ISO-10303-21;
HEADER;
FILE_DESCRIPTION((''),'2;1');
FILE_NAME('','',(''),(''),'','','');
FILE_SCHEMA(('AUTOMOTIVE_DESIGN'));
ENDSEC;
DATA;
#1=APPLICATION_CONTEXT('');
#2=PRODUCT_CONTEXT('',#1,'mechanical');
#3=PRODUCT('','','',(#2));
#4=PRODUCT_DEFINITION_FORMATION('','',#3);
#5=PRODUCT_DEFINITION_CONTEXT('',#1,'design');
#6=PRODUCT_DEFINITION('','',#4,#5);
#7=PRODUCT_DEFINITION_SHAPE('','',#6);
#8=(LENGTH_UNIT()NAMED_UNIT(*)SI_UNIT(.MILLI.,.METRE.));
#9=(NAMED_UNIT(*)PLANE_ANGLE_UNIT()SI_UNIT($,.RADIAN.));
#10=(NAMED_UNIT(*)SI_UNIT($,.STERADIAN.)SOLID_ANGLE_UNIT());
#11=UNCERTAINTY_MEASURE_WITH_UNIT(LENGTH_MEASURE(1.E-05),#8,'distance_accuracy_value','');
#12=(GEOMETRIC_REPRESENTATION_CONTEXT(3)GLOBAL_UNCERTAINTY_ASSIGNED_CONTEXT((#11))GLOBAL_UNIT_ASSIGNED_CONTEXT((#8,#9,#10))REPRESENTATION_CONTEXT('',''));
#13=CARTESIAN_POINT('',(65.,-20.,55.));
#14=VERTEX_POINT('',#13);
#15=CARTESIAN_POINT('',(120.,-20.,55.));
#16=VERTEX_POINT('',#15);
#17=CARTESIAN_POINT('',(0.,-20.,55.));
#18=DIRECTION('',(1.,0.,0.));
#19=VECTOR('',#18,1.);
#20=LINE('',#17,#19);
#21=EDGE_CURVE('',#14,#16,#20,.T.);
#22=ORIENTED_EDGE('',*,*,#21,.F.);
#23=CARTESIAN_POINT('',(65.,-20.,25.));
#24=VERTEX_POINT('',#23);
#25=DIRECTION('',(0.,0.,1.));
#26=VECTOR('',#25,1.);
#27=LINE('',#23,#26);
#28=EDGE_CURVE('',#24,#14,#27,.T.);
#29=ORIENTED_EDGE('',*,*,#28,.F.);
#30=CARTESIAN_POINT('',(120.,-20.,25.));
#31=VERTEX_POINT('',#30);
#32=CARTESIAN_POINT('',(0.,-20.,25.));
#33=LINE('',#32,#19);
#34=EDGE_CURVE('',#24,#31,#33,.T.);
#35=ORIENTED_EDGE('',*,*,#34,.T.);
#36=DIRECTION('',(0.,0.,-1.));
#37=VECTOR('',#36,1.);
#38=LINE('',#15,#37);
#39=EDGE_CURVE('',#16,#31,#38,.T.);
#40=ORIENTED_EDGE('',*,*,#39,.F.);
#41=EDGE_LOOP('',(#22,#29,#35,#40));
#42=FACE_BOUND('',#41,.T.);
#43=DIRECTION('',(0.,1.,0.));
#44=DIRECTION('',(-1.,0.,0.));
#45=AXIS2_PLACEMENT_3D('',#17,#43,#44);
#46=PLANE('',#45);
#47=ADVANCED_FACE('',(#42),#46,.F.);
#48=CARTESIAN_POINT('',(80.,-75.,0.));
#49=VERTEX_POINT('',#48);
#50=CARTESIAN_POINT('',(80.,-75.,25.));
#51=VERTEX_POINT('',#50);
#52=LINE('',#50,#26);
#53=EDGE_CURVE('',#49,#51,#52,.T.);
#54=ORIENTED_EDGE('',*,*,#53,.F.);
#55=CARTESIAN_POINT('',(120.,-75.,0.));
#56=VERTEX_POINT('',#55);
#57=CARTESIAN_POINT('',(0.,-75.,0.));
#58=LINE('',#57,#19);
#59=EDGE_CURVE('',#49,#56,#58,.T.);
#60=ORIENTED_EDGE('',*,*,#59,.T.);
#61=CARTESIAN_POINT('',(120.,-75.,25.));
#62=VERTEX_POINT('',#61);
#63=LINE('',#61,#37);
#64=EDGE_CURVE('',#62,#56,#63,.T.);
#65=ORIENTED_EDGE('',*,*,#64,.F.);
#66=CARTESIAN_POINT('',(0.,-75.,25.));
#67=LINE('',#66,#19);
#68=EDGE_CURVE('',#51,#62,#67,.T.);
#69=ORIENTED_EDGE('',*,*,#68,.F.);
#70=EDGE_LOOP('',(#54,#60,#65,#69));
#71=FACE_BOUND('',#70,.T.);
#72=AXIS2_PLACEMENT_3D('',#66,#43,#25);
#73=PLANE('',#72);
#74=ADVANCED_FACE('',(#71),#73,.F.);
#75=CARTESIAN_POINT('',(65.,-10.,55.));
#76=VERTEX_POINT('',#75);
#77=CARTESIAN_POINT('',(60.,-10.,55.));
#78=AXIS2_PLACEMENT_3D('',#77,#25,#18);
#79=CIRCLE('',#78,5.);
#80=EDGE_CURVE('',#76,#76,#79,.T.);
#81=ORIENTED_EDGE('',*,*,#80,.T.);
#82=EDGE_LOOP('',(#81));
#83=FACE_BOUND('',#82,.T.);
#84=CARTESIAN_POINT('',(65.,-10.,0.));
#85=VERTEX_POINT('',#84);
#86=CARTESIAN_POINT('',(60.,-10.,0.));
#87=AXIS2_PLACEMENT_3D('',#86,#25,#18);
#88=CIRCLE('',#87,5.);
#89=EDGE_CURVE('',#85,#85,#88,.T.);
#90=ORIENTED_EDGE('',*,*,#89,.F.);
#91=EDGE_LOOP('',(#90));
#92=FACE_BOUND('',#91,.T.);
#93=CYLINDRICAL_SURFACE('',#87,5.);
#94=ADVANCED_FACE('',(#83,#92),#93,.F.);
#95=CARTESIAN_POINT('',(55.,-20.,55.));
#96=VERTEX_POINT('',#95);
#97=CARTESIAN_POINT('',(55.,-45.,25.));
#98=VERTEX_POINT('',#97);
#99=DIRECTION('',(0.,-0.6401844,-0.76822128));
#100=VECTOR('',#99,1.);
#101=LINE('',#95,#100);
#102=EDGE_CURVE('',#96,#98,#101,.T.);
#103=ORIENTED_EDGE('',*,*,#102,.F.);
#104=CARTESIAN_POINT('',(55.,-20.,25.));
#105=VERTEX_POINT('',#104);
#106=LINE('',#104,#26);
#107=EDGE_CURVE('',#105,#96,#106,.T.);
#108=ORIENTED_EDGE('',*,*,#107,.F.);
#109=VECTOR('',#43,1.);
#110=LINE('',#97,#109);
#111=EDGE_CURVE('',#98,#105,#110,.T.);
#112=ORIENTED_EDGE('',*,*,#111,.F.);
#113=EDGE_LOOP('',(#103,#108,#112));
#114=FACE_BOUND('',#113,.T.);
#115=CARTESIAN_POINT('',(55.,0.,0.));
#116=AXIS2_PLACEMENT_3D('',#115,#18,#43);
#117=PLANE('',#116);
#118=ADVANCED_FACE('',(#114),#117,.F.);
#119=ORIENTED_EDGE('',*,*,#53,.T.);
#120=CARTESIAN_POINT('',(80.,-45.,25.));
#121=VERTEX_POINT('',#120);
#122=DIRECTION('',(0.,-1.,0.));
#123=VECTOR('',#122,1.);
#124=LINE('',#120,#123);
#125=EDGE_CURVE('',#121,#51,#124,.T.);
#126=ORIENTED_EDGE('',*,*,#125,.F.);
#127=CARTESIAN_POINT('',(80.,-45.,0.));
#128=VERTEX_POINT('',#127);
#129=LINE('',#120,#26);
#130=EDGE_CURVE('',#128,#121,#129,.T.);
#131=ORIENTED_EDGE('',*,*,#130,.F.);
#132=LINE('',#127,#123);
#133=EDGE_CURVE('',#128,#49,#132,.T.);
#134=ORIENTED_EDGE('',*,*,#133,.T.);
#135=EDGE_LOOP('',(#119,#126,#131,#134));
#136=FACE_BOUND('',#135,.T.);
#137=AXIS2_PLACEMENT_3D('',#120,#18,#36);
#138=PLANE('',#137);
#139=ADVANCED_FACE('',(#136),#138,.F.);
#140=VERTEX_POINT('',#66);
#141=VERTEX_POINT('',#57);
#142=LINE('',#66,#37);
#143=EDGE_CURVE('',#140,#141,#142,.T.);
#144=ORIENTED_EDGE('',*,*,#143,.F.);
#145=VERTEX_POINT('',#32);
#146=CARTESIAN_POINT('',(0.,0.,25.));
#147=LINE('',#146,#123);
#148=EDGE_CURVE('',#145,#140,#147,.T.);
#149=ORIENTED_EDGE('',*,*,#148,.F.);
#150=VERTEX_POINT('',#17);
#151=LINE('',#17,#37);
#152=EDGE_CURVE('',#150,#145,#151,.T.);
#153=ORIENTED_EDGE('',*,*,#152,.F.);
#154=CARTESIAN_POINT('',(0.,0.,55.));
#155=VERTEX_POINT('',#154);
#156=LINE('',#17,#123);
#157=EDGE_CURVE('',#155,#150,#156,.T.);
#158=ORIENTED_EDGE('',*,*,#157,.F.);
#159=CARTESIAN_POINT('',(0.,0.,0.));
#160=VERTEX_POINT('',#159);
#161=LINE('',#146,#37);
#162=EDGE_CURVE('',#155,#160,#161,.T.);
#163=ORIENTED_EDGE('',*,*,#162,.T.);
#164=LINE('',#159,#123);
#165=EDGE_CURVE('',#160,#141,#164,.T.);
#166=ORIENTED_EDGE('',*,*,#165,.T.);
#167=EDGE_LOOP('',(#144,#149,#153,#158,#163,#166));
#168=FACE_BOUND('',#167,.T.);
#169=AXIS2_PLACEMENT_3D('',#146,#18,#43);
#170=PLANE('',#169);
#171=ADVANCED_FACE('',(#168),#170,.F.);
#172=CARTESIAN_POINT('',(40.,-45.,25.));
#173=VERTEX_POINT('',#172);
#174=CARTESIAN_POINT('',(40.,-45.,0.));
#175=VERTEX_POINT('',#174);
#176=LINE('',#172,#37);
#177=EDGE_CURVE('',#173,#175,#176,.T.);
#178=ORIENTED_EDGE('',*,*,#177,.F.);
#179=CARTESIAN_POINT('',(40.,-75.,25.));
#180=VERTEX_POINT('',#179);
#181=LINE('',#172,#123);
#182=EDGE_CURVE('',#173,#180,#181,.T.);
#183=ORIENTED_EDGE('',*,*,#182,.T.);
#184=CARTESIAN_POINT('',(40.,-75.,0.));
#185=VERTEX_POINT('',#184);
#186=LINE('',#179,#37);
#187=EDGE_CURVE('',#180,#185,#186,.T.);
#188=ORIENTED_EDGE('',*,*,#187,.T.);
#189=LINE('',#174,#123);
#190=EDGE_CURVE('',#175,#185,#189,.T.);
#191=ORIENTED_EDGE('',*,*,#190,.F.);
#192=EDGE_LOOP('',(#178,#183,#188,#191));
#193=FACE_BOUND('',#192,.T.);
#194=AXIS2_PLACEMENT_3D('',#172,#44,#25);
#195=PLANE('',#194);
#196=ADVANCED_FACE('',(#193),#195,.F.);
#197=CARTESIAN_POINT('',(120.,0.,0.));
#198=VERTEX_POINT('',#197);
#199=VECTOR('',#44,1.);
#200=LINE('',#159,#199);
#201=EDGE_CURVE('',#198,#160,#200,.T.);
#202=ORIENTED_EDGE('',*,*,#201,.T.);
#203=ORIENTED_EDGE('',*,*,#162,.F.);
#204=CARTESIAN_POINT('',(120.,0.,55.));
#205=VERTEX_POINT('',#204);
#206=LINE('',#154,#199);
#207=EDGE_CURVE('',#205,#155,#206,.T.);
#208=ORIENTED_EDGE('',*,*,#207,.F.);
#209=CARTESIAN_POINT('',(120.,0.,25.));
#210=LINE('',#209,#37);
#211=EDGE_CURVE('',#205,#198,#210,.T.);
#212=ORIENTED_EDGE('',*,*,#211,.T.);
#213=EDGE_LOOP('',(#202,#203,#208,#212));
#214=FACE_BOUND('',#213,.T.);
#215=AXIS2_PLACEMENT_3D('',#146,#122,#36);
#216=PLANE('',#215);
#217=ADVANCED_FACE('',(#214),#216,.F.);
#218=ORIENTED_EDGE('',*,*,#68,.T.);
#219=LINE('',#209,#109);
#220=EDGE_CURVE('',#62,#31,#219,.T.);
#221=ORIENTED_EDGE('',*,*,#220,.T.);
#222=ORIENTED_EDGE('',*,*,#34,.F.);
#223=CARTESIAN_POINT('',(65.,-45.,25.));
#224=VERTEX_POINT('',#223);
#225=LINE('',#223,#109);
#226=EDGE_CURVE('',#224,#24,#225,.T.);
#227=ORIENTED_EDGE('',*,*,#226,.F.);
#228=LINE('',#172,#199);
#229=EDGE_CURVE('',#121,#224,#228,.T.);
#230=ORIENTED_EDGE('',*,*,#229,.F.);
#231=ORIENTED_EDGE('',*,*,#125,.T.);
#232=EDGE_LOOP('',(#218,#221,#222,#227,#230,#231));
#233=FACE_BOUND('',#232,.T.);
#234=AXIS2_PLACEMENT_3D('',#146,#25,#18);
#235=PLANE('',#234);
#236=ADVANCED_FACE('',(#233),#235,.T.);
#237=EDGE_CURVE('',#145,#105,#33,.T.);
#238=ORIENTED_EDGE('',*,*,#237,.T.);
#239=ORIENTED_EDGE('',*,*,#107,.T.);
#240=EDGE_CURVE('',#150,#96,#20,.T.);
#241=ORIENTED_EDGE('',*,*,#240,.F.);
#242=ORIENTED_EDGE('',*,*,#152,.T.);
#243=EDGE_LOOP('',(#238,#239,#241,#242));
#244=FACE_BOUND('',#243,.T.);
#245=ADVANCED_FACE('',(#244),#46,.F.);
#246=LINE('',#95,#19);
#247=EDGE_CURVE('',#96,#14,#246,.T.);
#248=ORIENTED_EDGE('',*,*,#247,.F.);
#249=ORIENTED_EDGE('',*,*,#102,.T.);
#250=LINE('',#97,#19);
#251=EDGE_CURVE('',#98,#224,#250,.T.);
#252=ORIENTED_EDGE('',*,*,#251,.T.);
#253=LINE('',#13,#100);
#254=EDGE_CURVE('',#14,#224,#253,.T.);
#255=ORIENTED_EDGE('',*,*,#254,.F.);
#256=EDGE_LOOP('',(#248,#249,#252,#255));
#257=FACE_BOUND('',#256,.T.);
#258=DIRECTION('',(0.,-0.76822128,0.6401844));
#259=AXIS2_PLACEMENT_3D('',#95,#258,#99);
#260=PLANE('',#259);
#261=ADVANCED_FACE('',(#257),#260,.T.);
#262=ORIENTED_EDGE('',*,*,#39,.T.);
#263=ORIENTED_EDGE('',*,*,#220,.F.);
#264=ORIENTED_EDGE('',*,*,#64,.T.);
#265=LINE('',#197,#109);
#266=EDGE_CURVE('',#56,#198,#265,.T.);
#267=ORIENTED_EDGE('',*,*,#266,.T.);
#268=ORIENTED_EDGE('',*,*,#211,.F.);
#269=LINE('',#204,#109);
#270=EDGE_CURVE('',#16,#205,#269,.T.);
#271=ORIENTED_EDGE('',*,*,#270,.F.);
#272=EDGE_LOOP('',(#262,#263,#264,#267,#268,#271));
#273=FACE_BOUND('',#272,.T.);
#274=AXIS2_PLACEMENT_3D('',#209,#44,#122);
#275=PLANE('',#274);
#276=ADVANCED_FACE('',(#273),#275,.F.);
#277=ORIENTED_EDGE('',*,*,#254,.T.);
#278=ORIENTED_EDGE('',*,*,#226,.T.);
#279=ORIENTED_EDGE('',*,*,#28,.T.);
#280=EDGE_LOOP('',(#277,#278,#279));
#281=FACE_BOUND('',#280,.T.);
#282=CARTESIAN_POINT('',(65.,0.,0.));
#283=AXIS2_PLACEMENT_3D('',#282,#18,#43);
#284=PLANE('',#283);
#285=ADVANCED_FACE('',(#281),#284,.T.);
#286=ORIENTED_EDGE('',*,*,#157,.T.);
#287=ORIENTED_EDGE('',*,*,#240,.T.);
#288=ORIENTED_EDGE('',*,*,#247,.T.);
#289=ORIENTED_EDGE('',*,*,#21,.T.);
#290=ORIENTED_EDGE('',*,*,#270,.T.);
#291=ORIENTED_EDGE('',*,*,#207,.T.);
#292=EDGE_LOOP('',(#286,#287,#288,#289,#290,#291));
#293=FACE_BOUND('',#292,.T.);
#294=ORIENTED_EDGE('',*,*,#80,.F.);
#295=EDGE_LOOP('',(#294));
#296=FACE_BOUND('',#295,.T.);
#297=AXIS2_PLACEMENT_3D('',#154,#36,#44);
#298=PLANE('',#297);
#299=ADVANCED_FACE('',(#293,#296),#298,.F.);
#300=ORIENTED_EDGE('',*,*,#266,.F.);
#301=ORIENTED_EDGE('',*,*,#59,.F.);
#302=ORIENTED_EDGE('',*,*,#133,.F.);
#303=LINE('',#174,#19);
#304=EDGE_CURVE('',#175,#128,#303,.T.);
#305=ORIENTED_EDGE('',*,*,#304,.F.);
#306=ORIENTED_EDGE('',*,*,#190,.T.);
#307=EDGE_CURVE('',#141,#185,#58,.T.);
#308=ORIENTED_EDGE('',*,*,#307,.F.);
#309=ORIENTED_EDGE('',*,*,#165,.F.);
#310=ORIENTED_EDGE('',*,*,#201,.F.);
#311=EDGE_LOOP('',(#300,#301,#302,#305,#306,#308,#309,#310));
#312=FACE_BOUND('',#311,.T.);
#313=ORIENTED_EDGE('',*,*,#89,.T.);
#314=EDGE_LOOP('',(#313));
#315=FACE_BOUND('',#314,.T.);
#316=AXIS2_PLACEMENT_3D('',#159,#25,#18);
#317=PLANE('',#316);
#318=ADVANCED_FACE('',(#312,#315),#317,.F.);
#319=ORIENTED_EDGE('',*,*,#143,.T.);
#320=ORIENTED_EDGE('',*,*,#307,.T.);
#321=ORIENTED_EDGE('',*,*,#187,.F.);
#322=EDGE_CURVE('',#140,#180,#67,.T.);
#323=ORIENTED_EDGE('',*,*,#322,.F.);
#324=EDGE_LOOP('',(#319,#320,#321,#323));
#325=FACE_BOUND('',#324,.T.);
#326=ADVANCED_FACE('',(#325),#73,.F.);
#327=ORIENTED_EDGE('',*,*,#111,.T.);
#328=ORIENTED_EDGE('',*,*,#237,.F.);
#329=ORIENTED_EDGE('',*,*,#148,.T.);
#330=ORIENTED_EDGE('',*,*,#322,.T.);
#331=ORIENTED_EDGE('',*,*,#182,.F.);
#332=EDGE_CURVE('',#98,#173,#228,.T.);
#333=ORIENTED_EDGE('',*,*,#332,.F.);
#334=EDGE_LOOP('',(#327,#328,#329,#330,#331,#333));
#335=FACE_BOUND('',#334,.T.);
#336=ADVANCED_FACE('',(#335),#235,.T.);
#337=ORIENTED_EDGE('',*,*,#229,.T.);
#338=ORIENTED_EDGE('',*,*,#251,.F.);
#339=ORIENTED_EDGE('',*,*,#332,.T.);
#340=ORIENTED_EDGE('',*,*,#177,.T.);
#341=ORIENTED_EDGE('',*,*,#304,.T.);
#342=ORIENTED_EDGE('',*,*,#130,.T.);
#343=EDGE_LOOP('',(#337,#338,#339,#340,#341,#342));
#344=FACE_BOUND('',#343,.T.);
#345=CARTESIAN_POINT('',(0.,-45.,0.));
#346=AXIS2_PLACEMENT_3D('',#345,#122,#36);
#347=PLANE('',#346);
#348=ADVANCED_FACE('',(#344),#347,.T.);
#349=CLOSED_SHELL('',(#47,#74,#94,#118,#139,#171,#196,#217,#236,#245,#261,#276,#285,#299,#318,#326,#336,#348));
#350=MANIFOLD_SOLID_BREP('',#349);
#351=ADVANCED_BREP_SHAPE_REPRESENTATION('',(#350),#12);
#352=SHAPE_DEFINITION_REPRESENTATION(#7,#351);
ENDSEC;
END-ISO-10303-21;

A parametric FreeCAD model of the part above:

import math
import FreeCAD as App
import Part
import Sketcher

V = App.Vector
Q = App.Units.Quantity


def add_polygon(sketch, points):
    """Adds a closed chain of lines whose ends are joined by coincident constraints."""
    first, n = sketch.GeometryCount, len(points)
    for a, b in zip(points, points[1:] + points[:1]):
        sketch.addGeometry(Part.LineSegment(App.Vector(*a, 0), App.Vector(*b, 0)), False)
    for i in range(n):
        sketch.addConstraint(Sketcher.Constraint("Coincident", first + i, 2, first + (i + 1) % n, 1))

doc = App.newDocument("Part")
body = doc.addObject("PartDesign::Body", "Body")

sketch1 = doc.addObject("Sketcher::SketchObject", "Sketch")
body.addObject(sketch1)
sketch1.AttachmentSupport = (doc.XY_Plane, [""])
sketch1.MapMode = "FlatFace"
add_polygon(sketch1, [(0, 0), (0, -75), (120, -75), (120, 0)])
sketch1.addConstraint(Sketcher.Constraint("Vertical", 0))
sketch1.addConstraint(Sketcher.Constraint("Horizontal", 1))
sketch1.addConstraint(Sketcher.Constraint("Vertical", 2))
sketch1.addConstraint(Sketcher.Constraint("Horizontal", 3))
sketch1.addConstraint(Sketcher.Constraint("Coincident", 3, 2, -1, 1))
sketch1.addConstraint(Sketcher.Constraint("DistanceX", 1, 1, 1, 2, Q("120 mm")))
sketch1.addConstraint(Sketcher.Constraint("DistanceY", 0, 2, 0, 1, Q("75 mm")))
pad1 = doc.addObject("PartDesign::Pad", "Pad")
body.addObject(pad1)
pad1.Profile = sketch1
pad1.Length = 25

sketch2 = doc.addObject("Sketcher::SketchObject", "Sketch001")
body.addObject(sketch2)
sketch2.AttachmentSupport = (doc.XZ_Plane, [""])
sketch2.MapMode = "FlatFace"
sketch2.AttachmentOffset = App.Placement(V(0, 0, 75), App.Rotation())
add_polygon(sketch2, [(40, 25), (40, 0), (80, 0), (80, 25)])
sketch2.addConstraint(Sketcher.Constraint("Vertical", 0))
sketch2.addConstraint(Sketcher.Constraint("Horizontal", 1))
sketch2.addConstraint(Sketcher.Constraint("Vertical", 2))
sketch2.addConstraint(Sketcher.Constraint("Horizontal", 3))
sketch2.addConstraint(Sketcher.Constraint("PointOnObject", 0, 2, -1))
sketch2.addConstraint(Sketcher.Constraint("DistanceX", 1, 1, 1, 2, Q("40 mm")))
sketch2.addConstraint(Sketcher.Constraint("DistanceY", 0, 2, 0, 1, Q("25 mm")))
sketch2.addConstraint(Sketcher.Constraint("DistanceX", -1, 1, 0, 2, Q("40 mm")))
pocket1 = doc.addObject("PartDesign::Pocket", "Pocket")
body.addObject(pocket1)
pocket1.Profile = sketch2
pocket1.Length = 30

sketch3 = doc.addObject("Sketcher::SketchObject", "Sketch002")
body.addObject(sketch3)
sketch3.AttachmentSupport = (doc.XY_Plane, [""])
sketch3.MapMode = "FlatFace"
sketch3.AttachmentOffset = App.Placement(V(0, 0, 25), App.Rotation())
add_polygon(sketch3, [(0, 0), (0, -20), (120, -20), (120, 0)])
sketch3.addConstraint(Sketcher.Constraint("Vertical", 0))
sketch3.addConstraint(Sketcher.Constraint("Horizontal", 1))
sketch3.addConstraint(Sketcher.Constraint("Vertical", 2))
sketch3.addConstraint(Sketcher.Constraint("Horizontal", 3))
sketch3.addConstraint(Sketcher.Constraint("Coincident", 3, 2, -1, 1))
sketch3.addConstraint(Sketcher.Constraint("DistanceX", 1, 1, 1, 2, Q("120 mm")))
sketch3.addConstraint(Sketcher.Constraint("DistanceY", 0, 2, 0, 1, Q("20 mm")))
pad2 = doc.addObject("PartDesign::Pad", "Pad001")
body.addObject(pad2)
pad2.Profile = sketch3
pad2.Length = 30

sketch4 = doc.addObject("Sketcher::SketchObject", "Sketch003")
body.addObject(sketch4)
sketch4.AttachmentSupport = (doc.YZ_Plane, [""])
sketch4.MapMode = "FlatFace"
sketch4.AttachmentOffset = App.Placement(V(0, 0, 65), App.Rotation())
add_polygon(sketch4, [(-20, 55), (-45, 25), (-20, 25)])
sketch4.addConstraint(Sketcher.Constraint("Horizontal", 1))
sketch4.addConstraint(Sketcher.Constraint("Vertical", 2))
sketch4.addConstraint(Sketcher.Constraint("DistanceX", 1, 1, 1, 2, Q("25 mm")))
sketch4.addConstraint(Sketcher.Constraint("DistanceY", 2, 1, 2, 2, Q("30 mm")))
sketch4.addConstraint(Sketcher.Constraint("DistanceX", 0, 2, -1, 1, Q("45 mm")))
sketch4.addConstraint(Sketcher.Constraint("DistanceY", -1, 1, 0, 2, Q("25 mm")))
pad3 = doc.addObject("PartDesign::Pad", "Pad002")
body.addObject(pad3)
pad3.Profile = sketch4
pad3.Length = 10
pad3.Reversed = True

sketch5 = doc.addObject("Sketcher::SketchObject", "Sketch004")
body.addObject(sketch5)
sketch5.AttachmentSupport = (doc.XY_Plane, [""])
sketch5.MapMode = "FlatFace"
sketch5.AttachmentOffset = App.Placement(V(0, 0, 55), App.Rotation())
sketch5.addGeometry(Part.ArcOfCircle(Part.Circle(V(60, -10, 0), V(0, 0, 1), 5), math.radians(-90), math.radians(0)), False)
sketch5.addGeometry(Part.ArcOfCircle(Part.Circle(V(60, -10, 0), V(0, 0, 1), 5), math.radians(0), math.radians(90)), False)
sketch5.addGeometry(Part.ArcOfCircle(Part.Circle(V(60, -10, 0), V(0, 0, 1), 5), math.radians(90), math.radians(180)), False)
sketch5.addGeometry(Part.ArcOfCircle(Part.Circle(V(60, -10, 0), V(0, 0, 1), 5), math.radians(180), math.radians(270)), False)
sketch5.addConstraint(Sketcher.Constraint("Tangent", 0, 2, 1, 1))
sketch5.addConstraint(Sketcher.Constraint("Tangent", 1, 2, 2, 1))
sketch5.addConstraint(Sketcher.Constraint("Tangent", 2, 2, 3, 1))
sketch5.addConstraint(Sketcher.Constraint("Tangent", 3, 2, 0, 1))
sketch5.addConstraint(Sketcher.Constraint("Equal", 0, 1))
sketch5.addConstraint(Sketcher.Constraint("Horizontal", 3, 3, 0, 2))
sketch5.addConstraint(Sketcher.Constraint("Horizontal", 0, 2, 2, 2))
sketch5.addConstraint(Sketcher.Constraint("Vertical", 3, 3, 1, 2))
sketch5.addConstraint(Sketcher.Constraint("Vertical", 1, 2, 3, 2))
sketch5.addConstraint(Sketcher.Constraint("Radius", 0, Q("5 mm")))
sketch5.addConstraint(Sketcher.Constraint("DistanceX", -1, 1, 0, 3, Q("60 mm")))
sketch5.addConstraint(Sketcher.Constraint("DistanceY", 0, 3, -1, 1, Q("10 mm")))
pocket2 = doc.addObject("PartDesign::Pocket", "Pocket001")
body.addObject(pocket2)
pocket2.Profile = sketch5
pocket2.Type = "ThroughAll"

doc.recompute()
